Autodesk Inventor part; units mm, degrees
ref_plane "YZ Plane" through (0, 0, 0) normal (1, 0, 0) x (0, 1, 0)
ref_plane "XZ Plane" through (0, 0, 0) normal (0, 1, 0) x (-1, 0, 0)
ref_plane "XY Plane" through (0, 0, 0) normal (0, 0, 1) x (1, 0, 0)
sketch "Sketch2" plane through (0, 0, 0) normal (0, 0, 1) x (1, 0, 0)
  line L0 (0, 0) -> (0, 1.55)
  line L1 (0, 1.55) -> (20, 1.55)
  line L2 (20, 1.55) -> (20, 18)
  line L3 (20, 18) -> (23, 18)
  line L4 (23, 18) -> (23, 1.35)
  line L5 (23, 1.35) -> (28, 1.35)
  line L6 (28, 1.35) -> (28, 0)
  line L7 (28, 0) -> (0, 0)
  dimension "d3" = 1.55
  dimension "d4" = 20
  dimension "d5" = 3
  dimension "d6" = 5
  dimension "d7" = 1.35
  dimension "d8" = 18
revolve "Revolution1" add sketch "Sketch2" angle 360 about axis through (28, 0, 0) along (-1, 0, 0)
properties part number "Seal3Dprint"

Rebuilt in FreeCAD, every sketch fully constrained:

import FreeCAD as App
import Part
import Sketcher
from FreeCAD import Vector


def add_polygon(sketch, points):
    """Adds a closed chain of lines whose ends are joined by coincident constraints."""
    first, n = sketch.GeometryCount, len(points)
    for a, b in zip(points, points[1:] + points[:1]):
        sketch.addGeometry(Part.LineSegment(App.Vector(*a, 0), App.Vector(*b, 0)), False)
    for i in range(n):
        sketch.addConstraint(Sketcher.Constraint("Coincident", first + i, 2, first + (i + 1) % n, 1))

doc = App.newDocument("Part")
params = doc.addObject("Spreadsheet::Sheet", "Params")
for row, (alias, value) in enumerate([
    ("sketch1_width", "5 mm"),
    ("sketch1_width2", "3 mm"),
    ("sketch1_width3", "20 mm"),
    ("sketch1_height", "1.55 mm"),
    ("sketch1_height2", "1.35 mm"),
    ("revolution_angle", "360 deg"),
], start=1):
    params.set(f"A{row}", alias)
    params.set(f"B{row}", "=" + value)
    params.setAlias(f"B{row}", alias)

body = doc.addObject("PartDesign::Body", "Body")

sketch1 = body.newObject("Sketcher::SketchObject", "Sketch")
sketch1.AttachmentSupport = (doc.getObject("XY_Plane"), [""])
sketch1.MapMode = "FlatFace"
add_polygon(sketch1, [(0, 1.6), (0, 0), (28, 0), (28, 1.4), (23, 1.4), (23, 18), (20, 18), (20, 1.6)])
sketch1.addConstraint([
    Sketcher.Constraint("Vertical", 0),
    Sketcher.Constraint("Horizontal", 1),
    Sketcher.Constraint("Vertical", 2),
    Sketcher.Constraint("Horizontal", 3),
    Sketcher.Constraint("Vertical", 4),
    Sketcher.Constraint("Horizontal", 5),
    Sketcher.Constraint("Vertical", 6),
    Sketcher.Constraint("Horizontal", 7),
    Sketcher.Constraint("Coincident", 0, 2, -1, 1),
    Sketcher.Constraint("DistanceX", 3, 2, 3, 1, 5.0),
    Sketcher.Constraint("DistanceX", 5, 2, 5, 1, 3.0),
    Sketcher.Constraint("DistanceX", 7, 2, 7, 1, 20.0),
    Sketcher.Constraint("DistanceY", -1, 1, 4, 2, 18.0),
    Sketcher.Constraint("DistanceY", 0, 2, 0, 1, 1.55),
    Sketcher.Constraint("DistanceY", 2, 1, 2, 2, 1.35),
])
sketch1.setExpression("Constraints[17]", "Params.sketch1_width")
sketch1.setExpression("Constraints[18]", "Params.sketch1_width2")
sketch1.setExpression("Constraints[19]", "Params.sketch1_width3")
sketch1.setExpression("Constraints[21]", "Params.sketch1_height")
sketch1.setExpression("Constraints[22]", "Params.sketch1_height2")
revolution = body.newObject("PartDesign::Revolution", "Revolution")
revolution.Profile = sketch1
revolution.ReferenceAxis = (sketch1, ["H_Axis"])
revolution.setExpression("Angle", "Params.revolution_angle")

doc.recompute()
